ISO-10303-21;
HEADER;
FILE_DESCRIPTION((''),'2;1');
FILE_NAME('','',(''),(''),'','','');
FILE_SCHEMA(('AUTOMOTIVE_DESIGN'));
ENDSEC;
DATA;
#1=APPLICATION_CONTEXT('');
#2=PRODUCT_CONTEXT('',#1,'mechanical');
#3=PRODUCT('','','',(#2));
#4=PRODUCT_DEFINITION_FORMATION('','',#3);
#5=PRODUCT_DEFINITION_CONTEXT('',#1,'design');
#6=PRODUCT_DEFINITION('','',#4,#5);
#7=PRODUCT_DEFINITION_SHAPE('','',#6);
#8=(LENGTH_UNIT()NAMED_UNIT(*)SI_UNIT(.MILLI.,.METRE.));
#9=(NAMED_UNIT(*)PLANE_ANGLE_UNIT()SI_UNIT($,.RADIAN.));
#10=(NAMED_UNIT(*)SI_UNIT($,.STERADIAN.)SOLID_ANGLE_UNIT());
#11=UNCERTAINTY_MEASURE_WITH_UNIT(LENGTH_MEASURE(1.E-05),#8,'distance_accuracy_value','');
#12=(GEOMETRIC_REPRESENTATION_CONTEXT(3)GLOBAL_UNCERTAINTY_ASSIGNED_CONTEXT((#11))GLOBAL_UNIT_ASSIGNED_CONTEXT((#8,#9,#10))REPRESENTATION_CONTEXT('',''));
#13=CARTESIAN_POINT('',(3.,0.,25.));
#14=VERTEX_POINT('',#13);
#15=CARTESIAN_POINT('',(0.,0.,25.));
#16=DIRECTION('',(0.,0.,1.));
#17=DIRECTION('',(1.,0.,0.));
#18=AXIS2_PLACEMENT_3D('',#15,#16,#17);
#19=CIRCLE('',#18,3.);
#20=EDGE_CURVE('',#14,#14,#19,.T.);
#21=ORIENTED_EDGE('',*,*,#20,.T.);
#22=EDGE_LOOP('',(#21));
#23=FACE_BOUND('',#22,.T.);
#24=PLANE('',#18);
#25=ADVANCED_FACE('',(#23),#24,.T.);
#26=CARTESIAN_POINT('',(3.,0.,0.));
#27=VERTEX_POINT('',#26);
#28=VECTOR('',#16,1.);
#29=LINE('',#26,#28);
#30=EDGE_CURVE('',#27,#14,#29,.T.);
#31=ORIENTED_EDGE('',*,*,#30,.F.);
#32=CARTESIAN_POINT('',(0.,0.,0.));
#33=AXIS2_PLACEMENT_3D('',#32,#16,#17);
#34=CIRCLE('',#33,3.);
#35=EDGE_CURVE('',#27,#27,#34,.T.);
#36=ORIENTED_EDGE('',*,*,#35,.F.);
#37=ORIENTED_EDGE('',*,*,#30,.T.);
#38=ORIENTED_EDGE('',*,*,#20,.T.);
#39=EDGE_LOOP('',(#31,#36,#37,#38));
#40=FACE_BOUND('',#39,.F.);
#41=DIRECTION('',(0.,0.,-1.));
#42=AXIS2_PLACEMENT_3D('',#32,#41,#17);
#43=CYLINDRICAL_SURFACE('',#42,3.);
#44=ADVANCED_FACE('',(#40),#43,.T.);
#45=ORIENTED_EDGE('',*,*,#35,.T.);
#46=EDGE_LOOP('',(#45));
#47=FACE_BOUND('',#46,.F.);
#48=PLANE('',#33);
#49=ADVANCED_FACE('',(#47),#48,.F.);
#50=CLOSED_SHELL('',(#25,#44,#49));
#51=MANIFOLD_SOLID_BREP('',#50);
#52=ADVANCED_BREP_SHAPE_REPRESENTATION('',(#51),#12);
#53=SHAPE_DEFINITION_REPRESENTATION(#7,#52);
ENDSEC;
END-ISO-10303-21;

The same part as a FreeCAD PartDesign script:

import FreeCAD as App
import Part
import Sketcher
from FreeCAD import Vector
Q = App.Units.Quantity

doc = App.newDocument("Part")
body = doc.addObject("PartDesign::Body", "Body")

# Sketch on XY plane
sketch1 = body.newObject("Sketcher::SketchObject", "Sketch")
sketch1.AttachmentSupport = (doc.getObject("XY_Plane"), [""])
sketch1.MapMode = "FlatFace"
sketch1.addGeometry(Part.Circle(Vector(0, 0, 0), Vector(0, 0, 1), 3), False)
sketch1.addConstraint(Sketcher.Constraint("Coincident", 0, 3, -1, 1))
sketch1.addConstraint(Sketcher.Constraint("Diameter", 0, Q("6 mm")))
pad1 = body.newObject("PartDesign::Pad", "Pad")
pad1.Profile = sketch1
pad1.Length = 25

doc.recompute()
